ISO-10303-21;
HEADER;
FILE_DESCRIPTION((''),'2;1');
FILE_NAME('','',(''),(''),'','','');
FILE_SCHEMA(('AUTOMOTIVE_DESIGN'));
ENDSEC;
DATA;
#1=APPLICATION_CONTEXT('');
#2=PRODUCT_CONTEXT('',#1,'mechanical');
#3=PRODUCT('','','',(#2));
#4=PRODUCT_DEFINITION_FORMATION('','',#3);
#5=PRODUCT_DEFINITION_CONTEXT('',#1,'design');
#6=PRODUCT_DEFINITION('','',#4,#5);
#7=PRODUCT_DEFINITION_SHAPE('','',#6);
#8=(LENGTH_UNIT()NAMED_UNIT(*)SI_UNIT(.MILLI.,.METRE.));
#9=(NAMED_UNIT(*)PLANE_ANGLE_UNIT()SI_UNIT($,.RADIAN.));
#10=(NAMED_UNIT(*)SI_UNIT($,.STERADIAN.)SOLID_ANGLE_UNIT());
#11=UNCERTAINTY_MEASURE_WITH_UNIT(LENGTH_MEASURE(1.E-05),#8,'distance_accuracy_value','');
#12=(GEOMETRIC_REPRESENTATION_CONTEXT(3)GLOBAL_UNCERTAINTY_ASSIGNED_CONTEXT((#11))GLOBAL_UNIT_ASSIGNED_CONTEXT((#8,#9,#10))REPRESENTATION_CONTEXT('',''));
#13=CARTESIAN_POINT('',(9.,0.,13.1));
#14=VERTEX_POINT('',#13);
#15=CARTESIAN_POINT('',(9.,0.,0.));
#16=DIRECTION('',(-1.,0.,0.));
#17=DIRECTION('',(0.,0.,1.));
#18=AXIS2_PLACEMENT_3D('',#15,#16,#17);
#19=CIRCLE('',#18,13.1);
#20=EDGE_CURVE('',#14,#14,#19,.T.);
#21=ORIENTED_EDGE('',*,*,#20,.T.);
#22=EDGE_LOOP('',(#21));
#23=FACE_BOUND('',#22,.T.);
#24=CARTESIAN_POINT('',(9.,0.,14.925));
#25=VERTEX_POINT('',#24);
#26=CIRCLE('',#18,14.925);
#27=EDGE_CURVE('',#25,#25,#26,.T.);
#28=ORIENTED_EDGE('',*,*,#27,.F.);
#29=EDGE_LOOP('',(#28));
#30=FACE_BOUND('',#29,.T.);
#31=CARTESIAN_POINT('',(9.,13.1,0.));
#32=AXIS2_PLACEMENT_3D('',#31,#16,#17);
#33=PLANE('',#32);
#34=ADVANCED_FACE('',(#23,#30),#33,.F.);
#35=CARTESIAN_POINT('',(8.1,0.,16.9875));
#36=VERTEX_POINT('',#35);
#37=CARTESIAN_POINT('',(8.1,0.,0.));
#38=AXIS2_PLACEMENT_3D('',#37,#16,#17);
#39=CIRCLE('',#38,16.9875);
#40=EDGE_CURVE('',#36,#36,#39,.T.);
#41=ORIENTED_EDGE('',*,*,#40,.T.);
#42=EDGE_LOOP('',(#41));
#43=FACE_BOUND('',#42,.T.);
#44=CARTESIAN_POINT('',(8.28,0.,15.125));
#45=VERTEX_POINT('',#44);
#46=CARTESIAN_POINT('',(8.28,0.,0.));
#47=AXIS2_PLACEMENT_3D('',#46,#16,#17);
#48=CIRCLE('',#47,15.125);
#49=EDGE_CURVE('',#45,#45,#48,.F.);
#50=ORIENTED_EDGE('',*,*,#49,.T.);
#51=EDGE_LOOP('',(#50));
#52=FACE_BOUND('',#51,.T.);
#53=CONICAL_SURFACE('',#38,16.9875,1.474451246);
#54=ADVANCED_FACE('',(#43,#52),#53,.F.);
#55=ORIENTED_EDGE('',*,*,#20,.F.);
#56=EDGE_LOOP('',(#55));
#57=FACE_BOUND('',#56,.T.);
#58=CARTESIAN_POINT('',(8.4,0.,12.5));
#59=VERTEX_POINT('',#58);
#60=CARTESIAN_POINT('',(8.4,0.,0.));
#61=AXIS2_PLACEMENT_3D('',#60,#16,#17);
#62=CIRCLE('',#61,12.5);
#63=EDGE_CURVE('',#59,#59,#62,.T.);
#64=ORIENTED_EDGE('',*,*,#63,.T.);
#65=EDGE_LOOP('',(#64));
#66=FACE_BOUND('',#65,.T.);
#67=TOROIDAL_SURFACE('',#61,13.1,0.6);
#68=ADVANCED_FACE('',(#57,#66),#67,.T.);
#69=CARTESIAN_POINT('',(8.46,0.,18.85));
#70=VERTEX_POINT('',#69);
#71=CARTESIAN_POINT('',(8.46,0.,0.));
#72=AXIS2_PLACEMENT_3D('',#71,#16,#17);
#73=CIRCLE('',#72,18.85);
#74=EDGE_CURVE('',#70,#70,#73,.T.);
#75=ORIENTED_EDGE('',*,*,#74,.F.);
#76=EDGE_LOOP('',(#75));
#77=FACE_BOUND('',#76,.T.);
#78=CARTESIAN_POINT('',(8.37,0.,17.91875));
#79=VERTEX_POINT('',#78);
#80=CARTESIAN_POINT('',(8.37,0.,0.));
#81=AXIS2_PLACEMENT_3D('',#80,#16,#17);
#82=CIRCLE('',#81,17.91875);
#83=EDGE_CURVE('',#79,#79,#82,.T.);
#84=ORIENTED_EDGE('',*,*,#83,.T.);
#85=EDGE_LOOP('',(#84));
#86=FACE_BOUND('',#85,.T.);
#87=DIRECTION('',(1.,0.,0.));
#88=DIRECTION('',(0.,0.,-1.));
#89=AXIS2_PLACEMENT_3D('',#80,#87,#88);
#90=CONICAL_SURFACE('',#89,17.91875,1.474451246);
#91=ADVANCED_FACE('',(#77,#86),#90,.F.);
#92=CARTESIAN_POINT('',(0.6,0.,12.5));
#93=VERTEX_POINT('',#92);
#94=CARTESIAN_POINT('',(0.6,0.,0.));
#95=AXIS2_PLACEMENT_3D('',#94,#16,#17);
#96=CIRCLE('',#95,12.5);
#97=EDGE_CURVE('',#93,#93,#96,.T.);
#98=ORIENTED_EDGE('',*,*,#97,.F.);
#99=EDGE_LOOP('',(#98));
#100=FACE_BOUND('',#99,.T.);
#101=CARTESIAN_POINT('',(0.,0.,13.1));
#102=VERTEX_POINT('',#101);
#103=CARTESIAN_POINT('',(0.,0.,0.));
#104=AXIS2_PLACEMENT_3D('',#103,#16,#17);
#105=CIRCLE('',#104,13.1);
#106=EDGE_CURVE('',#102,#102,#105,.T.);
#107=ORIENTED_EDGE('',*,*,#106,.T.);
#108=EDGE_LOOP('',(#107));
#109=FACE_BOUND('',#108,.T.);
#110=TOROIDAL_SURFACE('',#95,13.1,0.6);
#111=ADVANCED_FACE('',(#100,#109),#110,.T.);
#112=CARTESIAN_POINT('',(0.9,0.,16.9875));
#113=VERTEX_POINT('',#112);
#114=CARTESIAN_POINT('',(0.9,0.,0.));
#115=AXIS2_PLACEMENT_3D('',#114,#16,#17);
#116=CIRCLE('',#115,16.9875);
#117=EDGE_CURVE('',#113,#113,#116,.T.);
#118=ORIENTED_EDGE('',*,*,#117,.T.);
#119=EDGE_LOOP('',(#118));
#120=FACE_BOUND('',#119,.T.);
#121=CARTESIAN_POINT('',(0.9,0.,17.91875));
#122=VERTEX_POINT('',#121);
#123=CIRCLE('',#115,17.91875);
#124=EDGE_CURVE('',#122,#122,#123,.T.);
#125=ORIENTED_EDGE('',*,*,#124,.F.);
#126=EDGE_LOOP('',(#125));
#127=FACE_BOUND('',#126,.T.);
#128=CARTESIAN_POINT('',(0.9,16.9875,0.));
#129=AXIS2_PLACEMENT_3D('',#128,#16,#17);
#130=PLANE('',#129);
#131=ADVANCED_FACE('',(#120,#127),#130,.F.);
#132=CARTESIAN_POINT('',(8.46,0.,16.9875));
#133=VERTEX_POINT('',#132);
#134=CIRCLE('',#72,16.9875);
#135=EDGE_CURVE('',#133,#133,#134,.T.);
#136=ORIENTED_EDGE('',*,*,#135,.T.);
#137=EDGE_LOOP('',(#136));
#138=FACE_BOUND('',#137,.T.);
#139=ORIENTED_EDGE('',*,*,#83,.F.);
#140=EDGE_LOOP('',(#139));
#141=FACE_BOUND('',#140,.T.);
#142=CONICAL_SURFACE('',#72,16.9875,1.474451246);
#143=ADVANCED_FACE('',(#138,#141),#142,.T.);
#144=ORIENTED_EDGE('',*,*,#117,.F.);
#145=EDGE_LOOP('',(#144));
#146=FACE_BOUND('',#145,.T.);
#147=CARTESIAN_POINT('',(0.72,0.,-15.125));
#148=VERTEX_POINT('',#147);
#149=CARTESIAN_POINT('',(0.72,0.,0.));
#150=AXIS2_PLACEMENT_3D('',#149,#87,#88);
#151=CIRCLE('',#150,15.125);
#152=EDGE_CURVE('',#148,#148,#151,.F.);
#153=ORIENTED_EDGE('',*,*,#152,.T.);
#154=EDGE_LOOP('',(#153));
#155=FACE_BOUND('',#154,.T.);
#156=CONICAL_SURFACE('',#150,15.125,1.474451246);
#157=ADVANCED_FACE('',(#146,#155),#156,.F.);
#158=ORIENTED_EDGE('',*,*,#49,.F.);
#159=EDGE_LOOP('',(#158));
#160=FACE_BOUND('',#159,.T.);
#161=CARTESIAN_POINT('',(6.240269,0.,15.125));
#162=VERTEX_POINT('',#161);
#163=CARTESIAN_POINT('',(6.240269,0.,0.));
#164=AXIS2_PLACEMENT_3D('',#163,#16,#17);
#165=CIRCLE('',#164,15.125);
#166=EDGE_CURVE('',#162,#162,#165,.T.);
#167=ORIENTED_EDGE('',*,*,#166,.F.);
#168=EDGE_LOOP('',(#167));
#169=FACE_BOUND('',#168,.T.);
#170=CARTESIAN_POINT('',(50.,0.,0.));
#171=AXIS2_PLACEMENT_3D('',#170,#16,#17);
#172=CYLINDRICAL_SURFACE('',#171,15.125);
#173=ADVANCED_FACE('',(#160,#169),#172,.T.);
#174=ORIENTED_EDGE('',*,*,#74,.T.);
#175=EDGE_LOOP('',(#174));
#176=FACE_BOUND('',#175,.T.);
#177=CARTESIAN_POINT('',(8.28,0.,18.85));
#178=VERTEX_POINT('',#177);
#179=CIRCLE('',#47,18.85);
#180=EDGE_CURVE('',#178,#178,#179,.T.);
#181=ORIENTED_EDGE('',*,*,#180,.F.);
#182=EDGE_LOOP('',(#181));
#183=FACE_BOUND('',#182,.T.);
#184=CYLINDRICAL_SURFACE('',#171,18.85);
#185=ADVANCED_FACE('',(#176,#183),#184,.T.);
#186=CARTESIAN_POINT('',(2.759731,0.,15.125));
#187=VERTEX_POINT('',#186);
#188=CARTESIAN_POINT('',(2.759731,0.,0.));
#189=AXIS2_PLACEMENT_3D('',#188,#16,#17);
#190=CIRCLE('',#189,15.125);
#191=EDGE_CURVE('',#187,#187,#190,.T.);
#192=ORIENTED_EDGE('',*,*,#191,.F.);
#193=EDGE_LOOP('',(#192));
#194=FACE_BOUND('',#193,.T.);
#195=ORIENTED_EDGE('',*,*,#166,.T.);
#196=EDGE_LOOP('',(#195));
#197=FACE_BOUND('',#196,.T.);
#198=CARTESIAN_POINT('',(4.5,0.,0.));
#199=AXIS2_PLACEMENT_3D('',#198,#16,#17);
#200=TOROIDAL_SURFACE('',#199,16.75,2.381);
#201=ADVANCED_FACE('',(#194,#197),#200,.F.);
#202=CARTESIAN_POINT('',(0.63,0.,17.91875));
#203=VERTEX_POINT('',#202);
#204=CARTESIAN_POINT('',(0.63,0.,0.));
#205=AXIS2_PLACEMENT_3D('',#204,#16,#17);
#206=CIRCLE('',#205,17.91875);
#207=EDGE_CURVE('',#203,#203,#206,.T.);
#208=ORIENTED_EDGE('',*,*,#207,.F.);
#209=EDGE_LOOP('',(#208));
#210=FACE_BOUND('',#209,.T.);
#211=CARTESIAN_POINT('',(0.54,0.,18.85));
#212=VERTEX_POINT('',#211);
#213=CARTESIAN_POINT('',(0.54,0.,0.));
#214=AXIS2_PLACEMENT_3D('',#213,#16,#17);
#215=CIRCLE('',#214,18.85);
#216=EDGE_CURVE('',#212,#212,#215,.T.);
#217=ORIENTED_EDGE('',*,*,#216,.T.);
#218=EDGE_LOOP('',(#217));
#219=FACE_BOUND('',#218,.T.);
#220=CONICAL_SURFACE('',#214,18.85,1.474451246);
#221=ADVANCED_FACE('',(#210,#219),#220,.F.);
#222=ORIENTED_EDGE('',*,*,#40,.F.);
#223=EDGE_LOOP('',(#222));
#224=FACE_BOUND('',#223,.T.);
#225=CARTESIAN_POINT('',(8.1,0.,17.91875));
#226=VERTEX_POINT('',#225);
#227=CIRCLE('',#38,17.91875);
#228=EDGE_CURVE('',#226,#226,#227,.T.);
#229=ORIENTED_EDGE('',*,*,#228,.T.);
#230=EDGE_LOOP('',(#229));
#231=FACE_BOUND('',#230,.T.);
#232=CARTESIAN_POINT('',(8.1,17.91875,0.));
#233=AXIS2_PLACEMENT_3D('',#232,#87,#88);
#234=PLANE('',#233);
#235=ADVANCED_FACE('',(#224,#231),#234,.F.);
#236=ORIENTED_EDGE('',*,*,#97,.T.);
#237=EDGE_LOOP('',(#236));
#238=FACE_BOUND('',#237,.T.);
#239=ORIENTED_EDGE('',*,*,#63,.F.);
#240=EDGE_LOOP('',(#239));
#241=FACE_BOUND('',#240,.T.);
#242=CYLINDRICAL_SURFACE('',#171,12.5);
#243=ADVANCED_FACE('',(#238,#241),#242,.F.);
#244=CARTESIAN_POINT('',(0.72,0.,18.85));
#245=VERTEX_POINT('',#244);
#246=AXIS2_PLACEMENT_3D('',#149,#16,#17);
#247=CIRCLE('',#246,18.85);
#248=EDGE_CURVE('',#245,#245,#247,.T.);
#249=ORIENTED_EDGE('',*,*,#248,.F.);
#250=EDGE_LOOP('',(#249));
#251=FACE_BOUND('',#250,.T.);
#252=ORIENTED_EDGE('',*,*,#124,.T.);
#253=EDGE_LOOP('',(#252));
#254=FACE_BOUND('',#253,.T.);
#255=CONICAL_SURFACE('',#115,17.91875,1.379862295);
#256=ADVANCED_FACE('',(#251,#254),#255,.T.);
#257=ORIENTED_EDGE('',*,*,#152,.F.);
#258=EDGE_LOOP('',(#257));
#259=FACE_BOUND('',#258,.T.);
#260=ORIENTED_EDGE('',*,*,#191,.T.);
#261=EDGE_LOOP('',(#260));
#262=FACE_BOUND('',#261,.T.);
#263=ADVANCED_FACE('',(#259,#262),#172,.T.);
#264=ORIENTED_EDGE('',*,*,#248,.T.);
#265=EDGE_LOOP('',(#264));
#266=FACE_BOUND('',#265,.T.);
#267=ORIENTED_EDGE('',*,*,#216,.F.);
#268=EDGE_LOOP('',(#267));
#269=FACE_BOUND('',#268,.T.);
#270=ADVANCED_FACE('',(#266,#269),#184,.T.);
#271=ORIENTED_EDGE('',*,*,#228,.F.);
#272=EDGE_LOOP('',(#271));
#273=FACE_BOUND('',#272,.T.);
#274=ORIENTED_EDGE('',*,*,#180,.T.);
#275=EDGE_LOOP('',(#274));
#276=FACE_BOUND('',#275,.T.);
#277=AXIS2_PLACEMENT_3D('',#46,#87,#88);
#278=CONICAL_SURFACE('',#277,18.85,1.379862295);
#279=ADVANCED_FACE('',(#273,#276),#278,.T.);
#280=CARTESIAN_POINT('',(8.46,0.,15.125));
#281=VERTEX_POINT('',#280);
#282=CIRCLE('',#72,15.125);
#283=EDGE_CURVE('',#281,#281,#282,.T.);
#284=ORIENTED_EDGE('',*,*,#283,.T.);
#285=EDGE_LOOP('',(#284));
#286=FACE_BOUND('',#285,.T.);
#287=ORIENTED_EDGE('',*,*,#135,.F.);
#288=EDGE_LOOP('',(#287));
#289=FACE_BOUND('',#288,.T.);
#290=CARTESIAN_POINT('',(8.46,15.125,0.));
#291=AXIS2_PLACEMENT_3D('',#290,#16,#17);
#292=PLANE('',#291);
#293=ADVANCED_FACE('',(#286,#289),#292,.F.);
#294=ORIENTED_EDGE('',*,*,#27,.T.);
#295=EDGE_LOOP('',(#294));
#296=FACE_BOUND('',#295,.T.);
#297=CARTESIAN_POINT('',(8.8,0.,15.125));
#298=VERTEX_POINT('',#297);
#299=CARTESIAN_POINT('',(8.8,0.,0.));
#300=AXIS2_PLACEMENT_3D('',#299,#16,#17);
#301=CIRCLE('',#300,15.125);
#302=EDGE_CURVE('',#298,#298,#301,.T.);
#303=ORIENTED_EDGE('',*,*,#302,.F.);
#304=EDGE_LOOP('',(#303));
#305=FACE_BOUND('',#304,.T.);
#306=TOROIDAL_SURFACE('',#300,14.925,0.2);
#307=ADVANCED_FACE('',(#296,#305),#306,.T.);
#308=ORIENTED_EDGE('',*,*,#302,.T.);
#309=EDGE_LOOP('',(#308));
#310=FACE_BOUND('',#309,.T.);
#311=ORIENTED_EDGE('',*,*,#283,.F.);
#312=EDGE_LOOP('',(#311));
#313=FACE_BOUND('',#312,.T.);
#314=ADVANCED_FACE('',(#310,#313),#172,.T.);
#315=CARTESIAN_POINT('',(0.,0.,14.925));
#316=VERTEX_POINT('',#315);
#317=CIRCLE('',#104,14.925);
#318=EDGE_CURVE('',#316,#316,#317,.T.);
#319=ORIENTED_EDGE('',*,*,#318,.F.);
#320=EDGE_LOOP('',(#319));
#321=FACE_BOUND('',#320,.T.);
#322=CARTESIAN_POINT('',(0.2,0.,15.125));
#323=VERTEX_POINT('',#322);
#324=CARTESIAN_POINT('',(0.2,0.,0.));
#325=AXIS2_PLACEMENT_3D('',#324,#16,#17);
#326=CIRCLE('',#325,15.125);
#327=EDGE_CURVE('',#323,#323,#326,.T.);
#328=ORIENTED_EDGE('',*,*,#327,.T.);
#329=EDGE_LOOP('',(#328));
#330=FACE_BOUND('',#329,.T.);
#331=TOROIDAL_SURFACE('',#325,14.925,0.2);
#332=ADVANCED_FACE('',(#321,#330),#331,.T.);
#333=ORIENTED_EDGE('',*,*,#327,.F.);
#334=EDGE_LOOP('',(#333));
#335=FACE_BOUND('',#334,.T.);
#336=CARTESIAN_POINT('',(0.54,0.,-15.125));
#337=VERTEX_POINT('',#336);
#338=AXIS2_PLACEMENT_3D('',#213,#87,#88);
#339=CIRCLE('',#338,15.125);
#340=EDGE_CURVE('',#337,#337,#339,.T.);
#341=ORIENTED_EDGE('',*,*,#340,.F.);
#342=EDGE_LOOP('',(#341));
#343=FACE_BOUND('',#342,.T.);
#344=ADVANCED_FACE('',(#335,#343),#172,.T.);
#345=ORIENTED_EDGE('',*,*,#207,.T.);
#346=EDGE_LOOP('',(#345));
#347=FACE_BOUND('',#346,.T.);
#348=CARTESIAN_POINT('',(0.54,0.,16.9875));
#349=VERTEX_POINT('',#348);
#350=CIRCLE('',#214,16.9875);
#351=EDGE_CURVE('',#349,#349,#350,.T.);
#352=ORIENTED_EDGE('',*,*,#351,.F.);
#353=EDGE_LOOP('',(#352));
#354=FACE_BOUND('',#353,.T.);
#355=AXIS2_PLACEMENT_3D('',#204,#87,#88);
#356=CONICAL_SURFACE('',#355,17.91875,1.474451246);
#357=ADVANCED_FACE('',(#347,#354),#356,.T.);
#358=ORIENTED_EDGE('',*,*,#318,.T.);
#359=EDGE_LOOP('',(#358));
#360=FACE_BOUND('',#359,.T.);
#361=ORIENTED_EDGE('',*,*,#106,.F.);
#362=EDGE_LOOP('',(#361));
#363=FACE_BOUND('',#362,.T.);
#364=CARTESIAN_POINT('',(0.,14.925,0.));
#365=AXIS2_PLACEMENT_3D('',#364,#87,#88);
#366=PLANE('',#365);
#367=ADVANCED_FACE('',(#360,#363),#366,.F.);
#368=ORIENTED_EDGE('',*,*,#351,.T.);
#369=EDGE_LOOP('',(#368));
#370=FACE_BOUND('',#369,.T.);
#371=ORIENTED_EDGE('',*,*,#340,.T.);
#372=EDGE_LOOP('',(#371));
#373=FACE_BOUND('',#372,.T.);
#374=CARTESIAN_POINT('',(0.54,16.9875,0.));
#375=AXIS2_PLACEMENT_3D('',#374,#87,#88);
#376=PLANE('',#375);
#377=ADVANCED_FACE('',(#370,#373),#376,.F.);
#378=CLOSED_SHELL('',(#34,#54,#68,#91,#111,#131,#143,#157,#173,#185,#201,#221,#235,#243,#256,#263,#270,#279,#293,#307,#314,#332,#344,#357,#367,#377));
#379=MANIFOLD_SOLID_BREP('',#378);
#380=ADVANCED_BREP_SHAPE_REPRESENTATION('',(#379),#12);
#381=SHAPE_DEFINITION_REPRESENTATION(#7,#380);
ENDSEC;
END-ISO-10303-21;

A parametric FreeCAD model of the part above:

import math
import FreeCAD as App
import Part
import Sketcher

doc = App.newDocument("Part")
body = doc.addObject("PartDesign::Body", "Body")

sketch1 = body.newObject("Sketcher::SketchObject", "Sketch")
sketch1.AttachmentSupport = (doc.getObject("XY_Plane"), [""])
sketch1.MapMode = "FlatFace"
sketch1.addGeometry([
    Part.LineSegment(App.Vector(0, 14.925, 0), App.Vector(0, 13.1, 0)),
    Part.ArcOfCircle(Part.Circle(App.Vector(0.6, 13.1, 0), App.Vector(0, 0, 1), 0.6), math.radians(180), math.radians(270)),
    Part.LineSegment(App.Vector(0.6, 12.5, 0), App.Vector(8.4, 12.5, 0)),
    Part.ArcOfCircle(Part.Circle(App.Vector(8.4, 13.1, 0), App.Vector(0, 0, 1), 0.6), math.radians(-90), math.radians(0)),
    Part.LineSegment(App.Vector(9, 13.1, 0), App.Vector(9, 14.925, 0)),
    Part.ArcOfCircle(Part.Circle(App.Vector(8.8, 14.925, 0), App.Vector(0, 0, 1), 0.2), math.radians(0), math.radians(90)),
    Part.LineSegment(App.Vector(8.8, 15.125, 0), App.Vector(6.240269, 15.125, 0)),
    Part.ArcOfCircle(Part.Circle(App.Vector(4.5, 16.75, 0), App.Vector(0, 0, 1), 2.381), math.radians(-136.961758), math.radians(-43.038242)),
    Part.LineSegment(App.Vector(2.759731, 15.125, 0), App.Vector(0.2, 15.125, 0)),
    Part.ArcOfCircle(Part.Circle(App.Vector(0.2, 14.925, 0), App.Vector(0, 0, 1), 0.2), math.radians(90), math.radians(180)),
], False)
sketch1.addConstraint([
    Sketcher.Constraint("Tangent", 0, 2, 1, 1),
    Sketcher.Constraint("Tangent", 1, 2, 2, 1),
    Sketcher.Constraint("Tangent", 2, 2, 3, 1),
    Sketcher.Constraint("Tangent", 3, 2, 4, 1),
    Sketcher.Constraint("Tangent", 4, 2, 5, 1),
    Sketcher.Constraint("Tangent", 5, 2, 6, 1),
    Sketcher.Constraint("Coincident", 6, 2, 7, 2),
    Sketcher.Constraint("Coincident", 7, 1, 8, 1),
    Sketcher.Constraint("Tangent", 8, 2, 9, 1),
    Sketcher.Constraint("Tangent", 9, 2, 0, 1),
    Sketcher.Constraint("Vertical", 0),
    Sketcher.Constraint("Horizontal", 2),
    Sketcher.Constraint("Vertical", 4),
    Sketcher.Constraint("Horizontal", 6),
    Sketcher.Constraint("Horizontal", 8),
    Sketcher.Constraint("Equal", 1, 3),
    Sketcher.Constraint("Equal", 5, 9),
    Sketcher.Constraint("PointOnObject", 0, 2, -2),
    Sketcher.Constraint("Horizontal", 5, 3, 9, 3),
    Sketcher.Constraint("Equal", 6, 8),
    Sketcher.Constraint("Radius", 1, 0.6),
    Sketcher.Constraint("Radius", 5, 0.2),
    Sketcher.Constraint("DistanceX", 2, 1, 2, 2, 7.8),
    Sketcher.Constraint("Radius", 7, 2.381),
    Sketcher.Constraint("DistanceY", -1, 1, 1, 3, 13.1),
    Sketcher.Constraint("DistanceY", 0, 2, 0, 1, 1.825),
    Sketcher.Constraint("DistanceY", -1, 1, 7, 3, 16.75),
])
revolution = body.newObject("PartDesign::Revolution", "Revolution")
revolution.Profile = sketch1
revolution.ReferenceAxis = (sketch1, ["H_Axis"])
revolution.Angle = 360

sketch2 = body.newObject("Sketcher::SketchObject", "Sketch001")
sketch2.AttachmentSupport = (doc.getObject("XY_Plane"), [""])
sketch2.MapMode = "FlatFace"
sketch2.addGeometry([
    Part.LineSegment(App.Vector(0.54, 18.85, 0), App.Vector(0.63, 17.91875, 0)),
    Part.LineSegment(App.Vector(0.63, 17.91875, 0), App.Vector(0.54, 16.9875, 0)),
    Part.LineSegment(App.Vector(0.54, 16.9875, 0), App.Vector(0.54, 15.125, 0)),
    Part.LineSegment(App.Vector(0.54, 15.125, 0), App.Vector(0.72, 15.125, 0)),
    Part.LineSegment(App.Vector(0.72, 15.125, 0), App.Vector(0.9, 16.9875, 0)),
    Part.LineSegment(App.Vector(0.9, 16.9875, 0), App.Vector(0.9, 17.91875, 0)),
    Part.LineSegment(App.Vector(0.9, 17.91875, 0), App.Vector(0.72, 18.85, 0)),
    Part.LineSegment(App.Vector(0.72, 18.85, 0), App.Vector(0.54, 18.85, 0)),
], False)
sketch2.addConstraint([
    Sketcher.Constraint("Coincident", 0, 2, 1, 1),
    Sketcher.Constraint("Coincident", 1, 2, 2, 1),
    Sketcher.Constraint("Coincident", 2, 2, 3, 1),
    Sketcher.Constraint("Coincident", 3, 2, 4, 1),
    Sketcher.Constraint("Coincident", 4, 2, 5, 1),
    Sketcher.Constraint("Coincident", 5, 2, 6, 1),
    Sketcher.Constraint("Coincident", 6, 2, 7, 1),
    Sketcher.Constraint("Coincident", 7, 2, 0, 1),
    Sketcher.Constraint("Vertical", 2),
    Sketcher.Constraint("Horizontal", 3),
    Sketcher.Constraint("Vertical", 5),
    Sketcher.Constraint("Horizontal", 7),
    Sketcher.Constraint("Parallel", 1, 4),
    Sketcher.Constraint("Horizontal", 1, 2, 4, 2),
    Sketcher.Constraint("Horizontal", 0, 2, 5, 2),
    Sketcher.Constraint("Vertical", 3, 2, 6, 2),
    Sketcher.Constraint("Vertical", 2, 2, 7, 2),
    Sketcher.Constraint("Equal", 0, 1),
    Sketcher.Constraint("DistanceX", 3, 1, 3, 2, 0.18),
    Sketcher.Constraint("DistanceX", -1, 1, 4, 2, 0.9),
    Sketcher.Constraint("DistanceX", -1, 1, 0, 2, 0.63),
    Sketcher.Constraint("DistanceX", -1, 1, 1, 2, 0.54),
    Sketcher.Constraint("DistanceY", -1, 1, 6, 2, 18.85),
    Sketcher.Constraint("DistanceY", 2, 2, 2, 1, 1.8625),
])
revolution2 = body.newObject("PartDesign::Revolution", "Revolution001")
revolution2.Profile = sketch2
revolution2.ReferenceAxis = (sketch2, ["H_Axis"])
revolution2.Angle = 360

sketch3 = body.newObject("Sketcher::SketchObject", "Sketch002")
sketch3.AttachmentSupport = (doc.getObject("XY_Plane"), [""])
sketch3.MapMode = "FlatFace"
sketch3.addGeometry([
    Part.LineSegment(App.Vector(8.1, 16.9875, 0), App.Vector(8.28, 15.125, 0)),
    Part.LineSegment(App.Vector(8.28, 15.125, 0), App.Vector(8.46, 15.125, 0)),
    Part.LineSegment(App.Vector(8.46, 15.125, 0), App.Vector(8.46, 16.9875, 0)),
    Part.LineSegment(App.Vector(8.46, 16.9875, 0), App.Vector(8.37, 17.91875, 0)),
    Part.LineSegment(App.Vector(8.37, 17.91875, 0), App.Vector(8.46, 18.85, 0)),
    Part.LineSegment(App.Vector(8.46, 18.85, 0), App.Vector(8.28, 18.85, 0)),
    Part.LineSegment(App.Vector(8.28, 18.85, 0), App.Vector(8.1, 17.91875, 0)),
    Part.LineSegment(App.Vector(8.1, 17.91875, 0), App.Vector(8.1, 16.9875, 0)),
], False)
sketch3.addConstraint([
    Sketcher.Constraint("Coincident", 0, 2, 1, 1),
    Sketcher.Constraint("Coincident", 1, 2, 2, 1),
    Sketcher.Constraint("Coincident", 2, 2, 3, 1),
    Sketcher.Constraint("Coincident", 3, 2, 4, 1),
    Sketcher.Constraint("Coincident", 4, 2, 5, 1),
    Sketcher.Constraint("Coincident", 5, 2, 6, 1),
    Sketcher.Constraint("Coincident", 6, 2, 7, 1),
    Sketcher.Constraint("Coincident", 7, 2, 0, 1),
    Sketcher.Constraint("Horizontal", 1),
    Sketcher.Constraint("Vertical", 2),
    Sketcher.Constraint("Horizontal", 5),
    Sketcher.Constraint("Vertical", 7),
    Sketcher.Constraint("Parallel", 0, 3),
    Sketcher.Constraint("Horizontal", 3, 2, 6, 2),
    Sketcher.Constraint("Horizontal", 2, 2, 7, 2),
    Sketcher.Constraint("Vertical", 2, 2, 4, 2),
    Sketcher.Constraint("Vertical", 0, 2, 5, 2),
    Sketcher.Constraint("Equal", 3, 4),
    Sketcher.Constraint("DistanceX", 1, 1, 1, 2, 0.18),
    Sketcher.Constraint("DistanceX", -1, 1, 6, 2, 8.1),
    Sketcher.Constraint("DistanceX", -1, 1, 0, 2, 8.28),
    Sketcher.Constraint("DistanceX", -1, 1, 3, 2, 8.37),
    Sketcher.Constraint("DistanceY", -1, 1, 4, 2, 18.85),
    Sketcher.Constraint("DistanceY", 2, 1, 2, 2, 1.8625),
])
revolution3 = body.newObject("PartDesign::Revolution", "Revolution002")
revolution3.Profile = sketch3
revolution3.ReferenceAxis = (sketch3, ["H_Axis"])
revolution3.Angle = 360

doc.recompute()
